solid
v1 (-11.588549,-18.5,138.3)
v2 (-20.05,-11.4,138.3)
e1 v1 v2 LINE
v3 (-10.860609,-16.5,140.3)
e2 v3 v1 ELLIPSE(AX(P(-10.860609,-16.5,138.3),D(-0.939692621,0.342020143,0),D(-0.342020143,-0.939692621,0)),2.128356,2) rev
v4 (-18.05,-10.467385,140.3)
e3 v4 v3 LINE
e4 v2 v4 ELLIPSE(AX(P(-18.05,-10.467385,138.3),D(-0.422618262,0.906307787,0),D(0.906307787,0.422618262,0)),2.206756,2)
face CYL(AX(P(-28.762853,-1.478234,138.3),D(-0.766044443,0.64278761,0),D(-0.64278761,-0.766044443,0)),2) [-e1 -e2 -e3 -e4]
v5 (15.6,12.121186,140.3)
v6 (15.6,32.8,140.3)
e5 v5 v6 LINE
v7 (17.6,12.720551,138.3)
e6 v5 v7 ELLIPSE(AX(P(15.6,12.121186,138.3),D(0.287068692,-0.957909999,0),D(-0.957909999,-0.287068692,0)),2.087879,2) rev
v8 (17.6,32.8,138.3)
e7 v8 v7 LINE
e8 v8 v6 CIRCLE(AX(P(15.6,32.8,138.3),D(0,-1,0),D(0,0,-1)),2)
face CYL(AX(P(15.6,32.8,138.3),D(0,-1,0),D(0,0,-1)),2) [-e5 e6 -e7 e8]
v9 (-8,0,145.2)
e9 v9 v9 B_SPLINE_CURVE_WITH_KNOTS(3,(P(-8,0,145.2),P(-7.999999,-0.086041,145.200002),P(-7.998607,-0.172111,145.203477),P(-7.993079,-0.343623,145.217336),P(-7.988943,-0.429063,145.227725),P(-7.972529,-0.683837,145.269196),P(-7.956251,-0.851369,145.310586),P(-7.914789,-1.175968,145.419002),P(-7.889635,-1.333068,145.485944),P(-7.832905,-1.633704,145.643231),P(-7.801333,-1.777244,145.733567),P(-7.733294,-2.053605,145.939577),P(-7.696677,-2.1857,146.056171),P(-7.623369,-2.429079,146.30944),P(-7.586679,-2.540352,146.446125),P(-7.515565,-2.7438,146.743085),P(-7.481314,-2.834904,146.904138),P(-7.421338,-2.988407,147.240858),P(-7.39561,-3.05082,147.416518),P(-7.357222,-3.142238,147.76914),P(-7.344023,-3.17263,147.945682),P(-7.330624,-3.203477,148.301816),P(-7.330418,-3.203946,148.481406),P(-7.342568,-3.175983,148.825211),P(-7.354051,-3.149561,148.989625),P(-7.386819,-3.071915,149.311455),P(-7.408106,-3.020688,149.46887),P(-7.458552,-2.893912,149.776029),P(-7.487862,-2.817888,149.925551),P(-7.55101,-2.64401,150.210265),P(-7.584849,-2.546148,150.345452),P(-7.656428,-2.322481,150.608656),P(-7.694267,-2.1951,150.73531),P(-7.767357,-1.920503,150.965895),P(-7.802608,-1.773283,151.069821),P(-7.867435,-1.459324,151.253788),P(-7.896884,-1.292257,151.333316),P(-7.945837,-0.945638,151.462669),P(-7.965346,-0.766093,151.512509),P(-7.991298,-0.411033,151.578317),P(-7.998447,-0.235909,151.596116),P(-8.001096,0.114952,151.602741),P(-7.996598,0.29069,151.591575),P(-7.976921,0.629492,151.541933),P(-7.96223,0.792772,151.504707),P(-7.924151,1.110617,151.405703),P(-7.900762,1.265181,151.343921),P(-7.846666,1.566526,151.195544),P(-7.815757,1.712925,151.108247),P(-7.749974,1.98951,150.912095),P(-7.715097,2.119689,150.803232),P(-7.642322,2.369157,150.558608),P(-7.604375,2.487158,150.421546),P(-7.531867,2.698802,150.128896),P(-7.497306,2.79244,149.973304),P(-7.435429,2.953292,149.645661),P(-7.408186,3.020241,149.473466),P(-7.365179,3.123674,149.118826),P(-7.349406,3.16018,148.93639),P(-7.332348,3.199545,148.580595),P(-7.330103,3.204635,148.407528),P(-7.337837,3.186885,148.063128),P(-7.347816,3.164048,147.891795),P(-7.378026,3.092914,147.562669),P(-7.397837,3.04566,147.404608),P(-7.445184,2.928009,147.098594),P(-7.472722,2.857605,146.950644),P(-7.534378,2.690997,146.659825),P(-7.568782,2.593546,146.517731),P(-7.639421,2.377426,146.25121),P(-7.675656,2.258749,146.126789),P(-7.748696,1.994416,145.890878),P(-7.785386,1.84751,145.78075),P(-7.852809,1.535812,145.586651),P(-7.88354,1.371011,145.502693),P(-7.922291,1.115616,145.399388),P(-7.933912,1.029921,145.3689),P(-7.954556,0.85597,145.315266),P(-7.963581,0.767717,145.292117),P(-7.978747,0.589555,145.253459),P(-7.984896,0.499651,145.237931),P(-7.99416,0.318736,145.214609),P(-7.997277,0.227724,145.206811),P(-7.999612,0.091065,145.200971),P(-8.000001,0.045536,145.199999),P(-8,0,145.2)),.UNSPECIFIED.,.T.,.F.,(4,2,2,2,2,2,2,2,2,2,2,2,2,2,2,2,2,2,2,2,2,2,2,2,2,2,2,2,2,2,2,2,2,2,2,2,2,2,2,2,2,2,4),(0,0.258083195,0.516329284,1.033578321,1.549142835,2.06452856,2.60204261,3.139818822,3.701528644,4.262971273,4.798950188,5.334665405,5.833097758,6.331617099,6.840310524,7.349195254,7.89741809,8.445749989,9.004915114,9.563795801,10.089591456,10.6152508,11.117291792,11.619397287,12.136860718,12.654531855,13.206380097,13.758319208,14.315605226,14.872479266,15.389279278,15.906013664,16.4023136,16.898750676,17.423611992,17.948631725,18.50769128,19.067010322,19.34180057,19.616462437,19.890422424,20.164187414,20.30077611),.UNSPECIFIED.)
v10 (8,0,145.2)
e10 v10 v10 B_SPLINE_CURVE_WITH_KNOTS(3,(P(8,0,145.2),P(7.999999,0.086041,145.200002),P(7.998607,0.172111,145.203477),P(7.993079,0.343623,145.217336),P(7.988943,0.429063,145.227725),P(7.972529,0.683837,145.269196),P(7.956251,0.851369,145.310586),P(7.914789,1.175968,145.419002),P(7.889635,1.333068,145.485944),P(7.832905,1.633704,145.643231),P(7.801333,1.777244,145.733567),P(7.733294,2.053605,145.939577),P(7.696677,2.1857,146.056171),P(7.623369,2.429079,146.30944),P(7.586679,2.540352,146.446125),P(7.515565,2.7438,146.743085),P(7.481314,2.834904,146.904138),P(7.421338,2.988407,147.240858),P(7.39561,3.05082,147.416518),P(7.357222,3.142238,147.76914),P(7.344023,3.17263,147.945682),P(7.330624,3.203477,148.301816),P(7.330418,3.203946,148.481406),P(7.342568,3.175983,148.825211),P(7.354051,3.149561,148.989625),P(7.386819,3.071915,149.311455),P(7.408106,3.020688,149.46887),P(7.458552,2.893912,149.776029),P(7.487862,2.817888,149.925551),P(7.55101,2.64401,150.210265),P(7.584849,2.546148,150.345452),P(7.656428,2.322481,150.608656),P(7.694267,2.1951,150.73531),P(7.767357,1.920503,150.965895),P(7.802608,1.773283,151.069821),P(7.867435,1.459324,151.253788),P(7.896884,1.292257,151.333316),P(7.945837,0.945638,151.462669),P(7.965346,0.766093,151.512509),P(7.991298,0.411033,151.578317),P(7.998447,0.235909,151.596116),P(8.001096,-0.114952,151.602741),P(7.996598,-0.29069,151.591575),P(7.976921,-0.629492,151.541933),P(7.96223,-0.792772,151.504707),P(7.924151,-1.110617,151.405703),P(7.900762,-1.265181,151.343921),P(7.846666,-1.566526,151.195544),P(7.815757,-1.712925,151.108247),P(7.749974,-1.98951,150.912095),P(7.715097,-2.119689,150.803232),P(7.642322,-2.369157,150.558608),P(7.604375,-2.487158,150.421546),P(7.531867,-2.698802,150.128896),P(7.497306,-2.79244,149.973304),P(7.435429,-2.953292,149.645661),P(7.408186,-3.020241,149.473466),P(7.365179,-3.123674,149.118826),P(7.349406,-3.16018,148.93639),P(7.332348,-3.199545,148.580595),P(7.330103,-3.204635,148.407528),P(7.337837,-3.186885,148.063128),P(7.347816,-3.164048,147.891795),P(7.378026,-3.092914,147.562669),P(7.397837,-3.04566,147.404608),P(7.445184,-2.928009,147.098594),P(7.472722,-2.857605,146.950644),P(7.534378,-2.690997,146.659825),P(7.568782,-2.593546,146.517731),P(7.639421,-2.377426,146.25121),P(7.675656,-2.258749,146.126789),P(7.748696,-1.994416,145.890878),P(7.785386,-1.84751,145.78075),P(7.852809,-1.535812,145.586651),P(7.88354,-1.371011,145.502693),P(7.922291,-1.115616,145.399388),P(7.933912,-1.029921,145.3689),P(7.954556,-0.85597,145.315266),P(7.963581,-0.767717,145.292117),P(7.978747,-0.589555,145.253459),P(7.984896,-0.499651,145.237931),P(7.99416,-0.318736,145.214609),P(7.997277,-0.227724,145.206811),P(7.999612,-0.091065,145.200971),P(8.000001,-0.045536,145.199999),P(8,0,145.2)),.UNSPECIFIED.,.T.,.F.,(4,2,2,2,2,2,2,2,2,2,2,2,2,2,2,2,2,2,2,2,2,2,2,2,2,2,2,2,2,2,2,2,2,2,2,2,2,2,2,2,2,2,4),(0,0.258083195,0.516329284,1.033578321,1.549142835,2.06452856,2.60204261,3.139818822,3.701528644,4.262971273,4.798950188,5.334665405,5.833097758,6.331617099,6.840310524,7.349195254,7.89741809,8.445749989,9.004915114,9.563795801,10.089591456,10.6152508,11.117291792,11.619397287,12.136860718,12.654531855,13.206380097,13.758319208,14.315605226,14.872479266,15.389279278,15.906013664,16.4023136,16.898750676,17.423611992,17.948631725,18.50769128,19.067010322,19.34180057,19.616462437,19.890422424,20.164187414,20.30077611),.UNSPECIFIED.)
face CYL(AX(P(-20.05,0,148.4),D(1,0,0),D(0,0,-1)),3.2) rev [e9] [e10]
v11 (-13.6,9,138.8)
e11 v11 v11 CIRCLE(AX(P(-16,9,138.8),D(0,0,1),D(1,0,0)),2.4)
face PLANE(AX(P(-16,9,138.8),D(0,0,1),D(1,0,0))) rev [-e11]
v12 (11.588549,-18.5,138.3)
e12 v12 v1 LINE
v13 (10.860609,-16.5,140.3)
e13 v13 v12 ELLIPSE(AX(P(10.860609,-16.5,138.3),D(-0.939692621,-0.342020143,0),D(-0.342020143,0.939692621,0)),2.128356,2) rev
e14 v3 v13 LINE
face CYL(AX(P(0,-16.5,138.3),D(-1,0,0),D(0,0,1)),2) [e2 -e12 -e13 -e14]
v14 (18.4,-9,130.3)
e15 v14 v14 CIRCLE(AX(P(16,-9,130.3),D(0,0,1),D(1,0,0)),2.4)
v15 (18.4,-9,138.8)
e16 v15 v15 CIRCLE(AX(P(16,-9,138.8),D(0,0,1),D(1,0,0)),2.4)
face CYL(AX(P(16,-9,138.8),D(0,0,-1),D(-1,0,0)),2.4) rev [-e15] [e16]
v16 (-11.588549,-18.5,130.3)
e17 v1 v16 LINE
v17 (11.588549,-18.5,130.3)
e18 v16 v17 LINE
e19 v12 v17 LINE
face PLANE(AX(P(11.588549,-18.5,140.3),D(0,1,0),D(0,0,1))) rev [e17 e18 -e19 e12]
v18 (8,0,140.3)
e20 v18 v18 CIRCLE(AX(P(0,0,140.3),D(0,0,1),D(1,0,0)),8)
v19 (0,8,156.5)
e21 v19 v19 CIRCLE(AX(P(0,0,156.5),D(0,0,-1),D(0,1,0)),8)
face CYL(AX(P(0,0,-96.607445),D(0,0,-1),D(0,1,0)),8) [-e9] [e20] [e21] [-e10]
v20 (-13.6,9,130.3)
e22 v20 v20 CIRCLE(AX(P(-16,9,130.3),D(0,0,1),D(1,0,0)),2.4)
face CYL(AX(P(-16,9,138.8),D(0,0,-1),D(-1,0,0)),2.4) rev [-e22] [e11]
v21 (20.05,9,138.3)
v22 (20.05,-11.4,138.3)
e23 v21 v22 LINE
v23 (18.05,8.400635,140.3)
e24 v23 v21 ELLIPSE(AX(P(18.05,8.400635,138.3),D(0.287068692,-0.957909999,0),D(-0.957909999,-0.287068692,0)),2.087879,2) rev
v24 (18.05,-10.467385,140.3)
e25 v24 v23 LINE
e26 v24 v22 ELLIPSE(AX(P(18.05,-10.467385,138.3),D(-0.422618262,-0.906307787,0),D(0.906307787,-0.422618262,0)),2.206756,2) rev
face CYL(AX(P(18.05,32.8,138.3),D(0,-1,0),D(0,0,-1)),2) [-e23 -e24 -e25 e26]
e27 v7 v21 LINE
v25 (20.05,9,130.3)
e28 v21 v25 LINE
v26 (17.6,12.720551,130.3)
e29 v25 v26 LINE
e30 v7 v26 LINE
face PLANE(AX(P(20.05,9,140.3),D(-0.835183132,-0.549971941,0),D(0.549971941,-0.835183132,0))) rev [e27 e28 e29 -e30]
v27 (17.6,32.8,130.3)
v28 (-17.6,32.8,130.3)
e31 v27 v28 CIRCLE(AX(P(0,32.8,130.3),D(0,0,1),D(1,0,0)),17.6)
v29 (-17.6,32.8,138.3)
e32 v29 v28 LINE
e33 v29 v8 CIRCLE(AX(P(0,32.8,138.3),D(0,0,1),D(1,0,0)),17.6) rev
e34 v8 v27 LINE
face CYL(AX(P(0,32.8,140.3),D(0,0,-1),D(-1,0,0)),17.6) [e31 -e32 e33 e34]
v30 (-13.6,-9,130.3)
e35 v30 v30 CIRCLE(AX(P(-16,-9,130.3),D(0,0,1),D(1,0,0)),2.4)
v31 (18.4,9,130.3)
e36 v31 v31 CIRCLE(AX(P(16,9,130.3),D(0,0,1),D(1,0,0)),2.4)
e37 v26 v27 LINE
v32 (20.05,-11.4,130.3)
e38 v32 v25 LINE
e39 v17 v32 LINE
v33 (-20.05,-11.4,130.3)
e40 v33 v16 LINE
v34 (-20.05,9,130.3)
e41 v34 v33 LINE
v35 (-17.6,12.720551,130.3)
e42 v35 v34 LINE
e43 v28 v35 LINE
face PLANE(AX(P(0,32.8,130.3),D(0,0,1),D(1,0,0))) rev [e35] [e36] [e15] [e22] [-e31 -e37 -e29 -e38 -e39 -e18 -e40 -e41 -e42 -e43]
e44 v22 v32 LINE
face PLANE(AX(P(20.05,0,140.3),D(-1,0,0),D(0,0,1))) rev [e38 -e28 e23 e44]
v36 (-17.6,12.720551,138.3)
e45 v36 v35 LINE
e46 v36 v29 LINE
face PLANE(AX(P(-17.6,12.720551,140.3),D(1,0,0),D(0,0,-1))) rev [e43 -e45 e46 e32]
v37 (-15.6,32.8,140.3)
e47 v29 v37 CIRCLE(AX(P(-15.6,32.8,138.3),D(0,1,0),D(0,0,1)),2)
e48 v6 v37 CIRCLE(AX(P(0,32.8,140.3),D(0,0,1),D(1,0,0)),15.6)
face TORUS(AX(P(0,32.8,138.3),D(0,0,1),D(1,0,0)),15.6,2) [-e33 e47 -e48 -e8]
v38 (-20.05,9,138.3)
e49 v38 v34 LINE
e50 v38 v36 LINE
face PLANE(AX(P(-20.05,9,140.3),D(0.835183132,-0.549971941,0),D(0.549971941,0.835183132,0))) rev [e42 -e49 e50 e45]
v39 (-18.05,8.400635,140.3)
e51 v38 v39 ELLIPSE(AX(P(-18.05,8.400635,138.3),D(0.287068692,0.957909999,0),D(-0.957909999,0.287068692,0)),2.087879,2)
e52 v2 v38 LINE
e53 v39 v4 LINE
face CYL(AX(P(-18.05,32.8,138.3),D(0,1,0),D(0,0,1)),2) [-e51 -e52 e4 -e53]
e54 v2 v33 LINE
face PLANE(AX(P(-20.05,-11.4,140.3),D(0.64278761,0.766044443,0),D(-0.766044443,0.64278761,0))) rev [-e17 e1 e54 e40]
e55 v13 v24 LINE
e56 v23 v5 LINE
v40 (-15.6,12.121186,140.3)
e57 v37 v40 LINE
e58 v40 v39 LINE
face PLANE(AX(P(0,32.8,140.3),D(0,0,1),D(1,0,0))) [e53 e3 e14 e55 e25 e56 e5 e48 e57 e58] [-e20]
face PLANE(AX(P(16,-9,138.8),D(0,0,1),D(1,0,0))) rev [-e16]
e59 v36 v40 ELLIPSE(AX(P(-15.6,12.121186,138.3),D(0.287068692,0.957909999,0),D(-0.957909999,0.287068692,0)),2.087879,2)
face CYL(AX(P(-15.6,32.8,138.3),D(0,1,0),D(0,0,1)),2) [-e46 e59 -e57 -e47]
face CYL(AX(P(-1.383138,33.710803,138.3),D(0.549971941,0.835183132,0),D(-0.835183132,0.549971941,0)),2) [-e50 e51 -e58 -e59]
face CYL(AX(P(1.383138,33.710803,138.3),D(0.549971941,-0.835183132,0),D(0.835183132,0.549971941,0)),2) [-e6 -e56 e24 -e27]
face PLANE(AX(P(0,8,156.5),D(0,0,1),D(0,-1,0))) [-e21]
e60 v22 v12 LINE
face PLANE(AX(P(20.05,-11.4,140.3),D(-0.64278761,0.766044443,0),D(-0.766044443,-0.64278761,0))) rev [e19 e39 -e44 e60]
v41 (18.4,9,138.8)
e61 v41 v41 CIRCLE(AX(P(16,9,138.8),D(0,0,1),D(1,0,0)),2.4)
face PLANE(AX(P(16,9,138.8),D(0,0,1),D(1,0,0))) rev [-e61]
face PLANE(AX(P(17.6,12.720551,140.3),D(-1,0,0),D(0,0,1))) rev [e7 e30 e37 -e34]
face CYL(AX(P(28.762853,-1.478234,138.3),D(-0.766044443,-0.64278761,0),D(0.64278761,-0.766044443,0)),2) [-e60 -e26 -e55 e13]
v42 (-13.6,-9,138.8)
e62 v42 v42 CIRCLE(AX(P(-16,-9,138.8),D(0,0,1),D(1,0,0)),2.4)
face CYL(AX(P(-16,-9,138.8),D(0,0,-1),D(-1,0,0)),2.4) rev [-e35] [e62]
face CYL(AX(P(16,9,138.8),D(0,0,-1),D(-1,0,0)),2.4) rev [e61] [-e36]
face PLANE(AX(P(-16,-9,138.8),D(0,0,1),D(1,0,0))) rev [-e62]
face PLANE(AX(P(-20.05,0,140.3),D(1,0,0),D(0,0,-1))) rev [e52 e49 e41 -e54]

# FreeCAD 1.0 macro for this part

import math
import FreeCAD as App
import Part
import Sketcher
from FreeCAD import Vector
Q = App.Units.Quantity


def edges_at(feature, points):
    """Names of the edges that pass closest to the given points."""
    edges = feature.Shape.Edges
    near = lambda p: min(range(len(edges)), key=lambda i: edges[i].distToShape(Part.Vertex(*p))[0])
    return sorted({f"Edge{near(p) + 1}" for p in points})


def add_polygon(sketch, points):
    """Adds a closed chain of lines whose ends are joined by coincident constraints."""
    first, n = sketch.GeometryCount, len(points)
    for a, b in zip(points, points[1:] + points[:1]):
        sketch.addGeometry(Part.LineSegment(App.Vector(*a, 0), App.Vector(*b, 0)), False)
    for i in range(n):
        sketch.addConstraint(Sketcher.Constraint("Coincident", first + i, 2, first + (i + 1) % n, 1))

doc = App.newDocument("Part")
body = doc.addObject("PartDesign::Body", "Body")

# Sketch on XY plane
sketch1 = body.newObject("Sketcher::SketchObject", "Sketch")
sketch1.AttachmentSupport = (doc.getObject("XY_Plane"), [""])
sketch1.MapMode = "FlatFace"
sketch1.AttachmentOffset = App.Placement(Vector(0, 0, 130.3), App.Rotation())
sketch1.addGeometry(Part.LineSegment(Vector(20.1, 9, 0), Vector(17.6, 12.7, 0)), False)
sketch1.addGeometry(Part.LineSegment(Vector(17.6, 12.7, 0), Vector(17.6, 32.8, 0)), False)
sketch1.addGeometry(Part.ArcOfCircle(Part.Circle(Vector(0, 32.8, 0), Vector(0, 0, 1), 17.6), math.radians(0), math.radians(90)), False)
sketch1.addGeometry(Part.ArcOfCircle(Part.Circle(Vector(0, 32.8, 0), Vector(0, 0, 1), 17.6), math.radians(90), math.radians(180)), False)
sketch1.addGeometry(Part.LineSegment(Vector(-17.6, 32.8, 0), Vector(-17.6, 12.7, 0)), False)
sketch1.addGeometry(Part.LineSegment(Vector(-17.6, 12.7, 0), Vector(-20.1, 9, 0)), False)
sketch1.addGeometry(Part.LineSegment(Vector(-20.1, 9, 0), Vector(-20.1, -11.4, 0)), False)
sketch1.addGeometry(Part.LineSegment(Vector(-20.1, -11.4, 0), Vector(-11.6, -18.5, 0)), False)
sketch1.addGeometry(Part.LineSegment(Vector(-11.6, -18.5, 0), Vector(11.6, -18.5, 0)), False)
sketch1.addGeometry(Part.LineSegment(Vector(11.6, -18.5, 0), Vector(20.1, -11.4, 0)), False)
sketch1.addGeometry(Part.LineSegment(Vector(20.1, -11.4, 0), Vector(20.1, 9, 0)), False)
sketch1.addConstraint(Sketcher.Constraint("Coincident", 0, 2, 1, 1))
sketch1.addConstraint(Sketcher.Constraint("Tangent", 1, 2, 2, 1))
sketch1.addConstraint(Sketcher.Constraint("Tangent", 2, 2, 3, 1))
sketch1.addConstraint(Sketcher.Constraint("Tangent", 3, 2, 4, 1))
sketch1.addConstraint(Sketcher.Constraint("Coincident", 4, 2, 5, 1))
sketch1.addConstraint(Sketcher.Constraint("Coincident", 5, 2, 6, 1))
sketch1.addConstraint(Sketcher.Constraint("Coincident", 6, 2, 7, 1))
sketch1.addConstraint(Sketcher.Constraint("Coincident", 7, 2, 8, 1))
sketch1.addConstraint(Sketcher.Constraint("Coincident", 8, 2, 9, 1))
sketch1.addConstraint(Sketcher.Constraint("Coincident", 9, 2, 10, 1))
sketch1.addConstraint(Sketcher.Constraint("Coincident", 10, 2, 0, 1))
sketch1.addConstraint(Sketcher.Constraint("Vertical", 1))
sketch1.addConstraint(Sketcher.Constraint("Vertical", 4))
sketch1.addConstraint(Sketcher.Constraint("Vertical", 6))
sketch1.addConstraint(Sketcher.Constraint("Horizontal", 8))
sketch1.addConstraint(Sketcher.Constraint("Vertical", 10))
sketch1.addConstraint(Sketcher.Constraint("Equal", 2, 3))
sketch1.addConstraint(Sketcher.Constraint("Symmetric", 0, 2, 4, 2, -2))
sketch1.addConstraint(Sketcher.Constraint("Symmetric", 6, 2, 9, 2, -2))
sketch1.addConstraint(Sketcher.Constraint("PointOnObject", 2, 2, -2))
sketch1.addConstraint(Sketcher.Constraint("Horizontal", 5, 2, 10, 2))
sketch1.addConstraint(Sketcher.Constraint("Equal", 7, 9))
sketch1.addConstraint(Sketcher.Constraint("Radius", 2, 17.6))
sketch1.addConstraint(Sketcher.Constraint("Angle", 7, Q("-40 deg")))
sketch1.addConstraint(Sketcher.Constraint("DistanceY", 6, 2, 6, 1, 20.4))
sketch1.addConstraint(Sketcher.Constraint("DistanceY", -1, 1, 5, 2, 9.0))
sketch1.addConstraint(Sketcher.Constraint("DistanceY", -1, 1, 2, 3, 32.8))
sketch1.addConstraint(Sketcher.Constraint("DistanceY", 7, 2, -1, 1, 18.5))
sketch1.addConstraint(Sketcher.Constraint("DistanceX", 6, 2, 9, 2, 40.1))
sketch1.addConstraint(Sketcher.Constraint("DistanceY", 1, 1, 1, 2, 20.079449))
pad1 = body.newObject("PartDesign::Pad", "Pad")
pad1.Profile = sketch1
pad1.Length = 10

# Sketch on YZ plane
sketch2 = body.newObject("Sketcher::SketchObject", "Sketch001")
sketch2.AttachmentSupport = (doc.getObject("YZ_Plane"), [""])
sketch2.MapMode = "FlatFace"
add_polygon(sketch2, [(8, 156), (0, 156), (0, 140), (8, 140)])  # lines 0-3
sketch2.addConstraint(Sketcher.Constraint("Horizontal", 0))
sketch2.addConstraint(Sketcher.Constraint("Vertical", 1))
sketch2.addConstraint(Sketcher.Constraint("Horizontal", 2))
sketch2.addConstraint(Sketcher.Constraint("Vertical", 3))
sketch2.addConstraint(Sketcher.Constraint("PointOnObject", 0, 2, -2))
sketch2.addConstraint(Sketcher.Constraint("DistanceX", 0, 2, 0, 1, 8.0))
sketch2.addConstraint(Sketcher.Constraint("DistanceY", 1, 2, 1, 1, 16.2))
sketch2.addConstraint(Sketcher.Constraint("DistanceY", -1, 1, 0, 2, 156.5))
revolution = body.newObject("PartDesign::Revolution", "Revolution")
revolution.Profile = sketch2
revolution.ReferenceAxis = (sketch2, ["V_Axis"])
revolution.Angle = 360

# Sketch on YZ plane
sketch3 = body.newObject("Sketcher::SketchObject", "Sketch002")
sketch3.AttachmentSupport = (doc.getObject("YZ_Plane"), [""])
sketch3.MapMode = "FlatFace"
sketch3.addGeometry(Part.Circle(Vector(0, 148.4, 0), Vector(0, 0, 1), 3.2), False)
sketch3.addConstraint(Sketcher.Constraint("PointOnObject", 0, 3, -2))
sketch3.addConstraint(Sketcher.Constraint("Diameter", 0, 6.4))
sketch3.addConstraint(Sketcher.Constraint("DistanceY", -1, 1, 0, 3, 148.4))
pocket1 = body.newObject("PartDesign::Pocket", "Pocket")
pocket1.Profile = sketch3
pocket1.Type = "ThroughAll"
pocket1.Midplane = True

# Sketch on XY plane
sketch4 = body.newObject("Sketcher::SketchObject", "Sketch003")
sketch4.AttachmentSupport = (doc.getObject("XY_Plane"), [""])
sketch4.MapMode = "FlatFace"
sketch4.AttachmentOffset = App.Placement(Vector(0, 0, 130.3), App.Rotation())
sketch4.addGeometry(Part.Circle(Vector(16, -9, 0), Vector(0, 0, 1), 2.4), False)
sketch4.addGeometry(Part.Circle(Vector(-16, -9, 0), Vector(0, 0, 1), 2.4), False)
sketch4.addGeometry(Part.Circle(Vector(-16, 9, 0), Vector(0, 0, 1), 2.4), False)
sketch4.addGeometry(Part.Circle(Vector(16, 9, 0), Vector(0, 0, 1), 2.4), False)
sketch4.addConstraint(Sketcher.Constraint("Equal", 0, 1))
sketch4.addConstraint(Sketcher.Constraint("Equal", 1, 2))
sketch4.addConstraint(Sketcher.Constraint("Equal", 2, 3))
sketch4.addConstraint(Sketcher.Constraint("Symmetric", 0, 3, 2, 3, -1, 1))
sketch4.addConstraint(Sketcher.Constraint("Symmetric", 1, 3, 3, 3, -1, 1))
sketch4.addConstraint(Sketcher.Constraint("Symmetric", 0, 3, 1, 3, -2))
sketch4.addConstraint(Sketcher.Constraint("Diameter", 0, 4.8))
sketch4.addConstraint(Sketcher.Constraint("DistanceX", -1, 1, 0, 3, 16.0))
sketch4.addConstraint(Sketcher.Constraint("DistanceY", 0, 3, -1, 1, 9.0))
pocket2 = body.newObject("PartDesign::Pocket", "Pocket001")
pocket2.Profile = sketch4
pocket2.Length = 8.5
pocket2.Reversed = True
doc.recompute()

fillet = body.newObject("PartDesign::Fillet", "Fillet")
fillet.Base = (pocket2, edges_at(pocket2, [
    (-17.6, 22.76, 140.3),
    (-18.825, 10.86, 140.3),
    (-20.05, -1.2, 140.3),
    (-15.819, -14.95, 140.3),
    (0, -18.5, 140.3),
    (15.819, -14.95, 140.3),
    (20.05, -1.2, 140.3),
    (12.445, 45.245, 140.3),
    (18.825, 10.86, 140.3),
    (17.6, 22.76, 140.3),
]))
fillet.Radius = 2

doc.recompute()
